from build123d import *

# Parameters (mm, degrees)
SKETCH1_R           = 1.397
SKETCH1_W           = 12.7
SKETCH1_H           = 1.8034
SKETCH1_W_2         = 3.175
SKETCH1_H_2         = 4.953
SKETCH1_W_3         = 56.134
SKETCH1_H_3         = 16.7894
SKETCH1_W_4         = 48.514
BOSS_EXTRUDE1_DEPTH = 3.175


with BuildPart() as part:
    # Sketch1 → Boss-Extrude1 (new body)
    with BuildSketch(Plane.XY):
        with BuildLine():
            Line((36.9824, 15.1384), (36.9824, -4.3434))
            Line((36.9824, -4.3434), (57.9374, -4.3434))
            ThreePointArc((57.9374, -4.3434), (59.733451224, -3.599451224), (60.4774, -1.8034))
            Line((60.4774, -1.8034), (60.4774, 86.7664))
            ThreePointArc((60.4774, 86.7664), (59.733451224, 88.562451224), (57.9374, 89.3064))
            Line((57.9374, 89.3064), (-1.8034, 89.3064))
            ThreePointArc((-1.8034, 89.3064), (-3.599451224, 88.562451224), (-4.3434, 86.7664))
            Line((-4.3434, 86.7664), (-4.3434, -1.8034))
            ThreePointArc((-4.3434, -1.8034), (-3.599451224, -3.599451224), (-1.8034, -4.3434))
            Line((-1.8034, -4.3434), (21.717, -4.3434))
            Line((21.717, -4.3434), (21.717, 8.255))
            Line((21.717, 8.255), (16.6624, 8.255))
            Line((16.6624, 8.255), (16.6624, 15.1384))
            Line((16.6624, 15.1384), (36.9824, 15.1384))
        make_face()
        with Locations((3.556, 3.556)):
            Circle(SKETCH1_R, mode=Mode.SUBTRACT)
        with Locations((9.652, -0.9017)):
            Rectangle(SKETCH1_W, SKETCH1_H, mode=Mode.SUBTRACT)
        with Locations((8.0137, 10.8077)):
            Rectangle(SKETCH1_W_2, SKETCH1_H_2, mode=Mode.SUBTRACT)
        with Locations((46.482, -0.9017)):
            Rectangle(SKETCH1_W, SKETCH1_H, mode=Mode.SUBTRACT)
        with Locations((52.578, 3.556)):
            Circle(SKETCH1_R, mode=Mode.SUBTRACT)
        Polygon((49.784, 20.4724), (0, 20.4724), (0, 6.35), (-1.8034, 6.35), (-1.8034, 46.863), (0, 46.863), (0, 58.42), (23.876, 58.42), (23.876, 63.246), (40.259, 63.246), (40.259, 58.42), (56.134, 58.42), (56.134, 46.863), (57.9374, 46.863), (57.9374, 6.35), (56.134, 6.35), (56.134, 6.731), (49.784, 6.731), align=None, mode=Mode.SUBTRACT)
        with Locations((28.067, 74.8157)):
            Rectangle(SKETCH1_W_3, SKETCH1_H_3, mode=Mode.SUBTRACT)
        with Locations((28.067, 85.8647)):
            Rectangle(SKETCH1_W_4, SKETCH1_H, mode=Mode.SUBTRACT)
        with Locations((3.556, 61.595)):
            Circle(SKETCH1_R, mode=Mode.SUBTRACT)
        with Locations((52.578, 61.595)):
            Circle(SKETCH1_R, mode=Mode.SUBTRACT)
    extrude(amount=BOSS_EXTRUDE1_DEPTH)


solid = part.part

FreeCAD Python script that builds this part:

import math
import FreeCAD as App
import Part
import Sketcher
from FreeCAD import Vector
Q = App.Units.Quantity

doc = App.newDocument("Part")
body = doc.addObject("PartDesign::Body", "Body")

sketch1 = doc.addObject("Sketcher::SketchObject", "Sketch")
body.addObject(sketch1)
sketch1.AttachmentSupport = (doc.XY_Plane, [""])
sketch1.MapMode = "FlatFace"
sketch1.addGeometry([
    Part.LineSegment(Vector(36.98, 15.14, 0), Vector(36.98, -4.34, 0)),
    Part.LineSegment(Vector(36.98, -4.34, 0), Vector(57.94, -4.34, 0)),
    Part.ArcOfCircle(Part.Circle(Vector(57.94, -1.8, 0), Vector(0, 0, 1), 2.54), math.radians(-90), math.radians(0)),
    Part.LineSegment(Vector(60.48, -1.8, 0), Vector(60.48, 86.77, 0)),
    Part.ArcOfCircle(Part.Circle(Vector(57.94, 86.77, 0), Vector(0, 0, 1), 2.54), math.radians(0), math.radians(90)),
    Part.LineSegment(Vector(57.94, 89.31, 0), Vector(-1.8, 89.31, 0)),
    Part.ArcOfCircle(Part.Circle(Vector(-1.8, 86.77, 0), Vector(0, 0, 1), 2.54), math.radians(90), math.radians(180)),
    Part.LineSegment(Vector(-4.34, 86.77, 0), Vector(-4.34, -1.8, 0)),
    Part.ArcOfCircle(Part.Circle(Vector(-1.8, -1.8, 0), Vector(0, 0, 1), 2.54), math.radians(-180), math.radians(-90)),
    Part.LineSegment(Vector(-1.8, -4.34, 0), Vector(21.72, -4.34, 0)),
    Part.LineSegment(Vector(21.72, -4.34, 0), Vector(21.72, 8.26, 0)),
    Part.LineSegment(Vector(21.72, 8.26, 0), Vector(16.66, 8.26, 0)),
    Part.LineSegment(Vector(16.66, 8.26, 0), Vector(16.66, 15.14, 0)),
    Part.LineSegment(Vector(16.66, 15.14, 0), Vector(36.98, 15.14, 0)),
    Part.Circle(Vector(3.56, 3.56, 0), Vector(0, 0, 1), 1.4),
    Part.LineSegment(Vector(16, -1.8, 0), Vector(3.3, -1.8, 0)),
    Part.LineSegment(Vector(3.3, -1.8, 0), Vector(3.3, 0, 0)),
    Part.LineSegment(Vector(3.3, 0, 0), Vector(16, 0, 0)),
    Part.LineSegment(Vector(16, 0, 0), Vector(16, -1.8, 0)),
    Part.LineSegment(Vector(9.6, 8.33, 0), Vector(6.43, 8.33, 0)),
    Part.LineSegment(Vector(6.43, 8.33, 0), Vector(6.43, 13.28, 0)),
    Part.LineSegment(Vector(6.43, 13.28, 0), Vector(9.6, 13.28, 0)),
    Part.LineSegment(Vector(9.6, 13.28, 0), Vector(9.6, 8.33, 0)),
    Part.LineSegment(Vector(52.83, -1.8, 0), Vector(40.13, -1.8, 0)),
    Part.LineSegment(Vector(40.13, -1.8, 0), Vector(40.13, 0, 0)),
    Part.LineSegment(Vector(40.13, 0, 0), Vector(52.83, 0, 0)),
    Part.LineSegment(Vector(52.83, 0, 0), Vector(52.83, -1.8, 0)),
    Part.Circle(Vector(52.58, 3.56, 0), Vector(0, 0, 1), 1.4),
    Part.LineSegment(Vector(49.78, 6.73, 0), Vector(49.78, 20.47, 0)),
    Part.LineSegment(Vector(49.78, 20.47, 0), Vector(0, 20.47, 0)),
    Part.LineSegment(Vector(0, 20.47, 0), Vector(0, 6.35, 0)),
    Part.LineSegment(Vector(0, 6.35, 0), Vector(-1.8, 6.35, 0)),
    Part.LineSegment(Vector(-1.8, 6.35, 0), Vector(-1.8, 46.86, 0)),
    Part.LineSegment(Vector(-1.8, 46.86, 0), Vector(0, 46.86, 0)),
    Part.LineSegment(Vector(0, 46.86, 0), Vector(0, 58.42, 0)),
    Part.LineSegment(Vector(0, 58.42, 0), Vector(23.88, 58.42, 0)),
    Part.LineSegment(Vector(23.88, 58.42, 0), Vector(23.88, 63.25, 0)),
    Part.LineSegment(Vector(23.88, 63.25, 0), Vector(40.26, 63.25, 0)),
    Part.LineSegment(Vector(40.26, 63.25, 0), Vector(40.26, 58.42, 0)),
    Part.LineSegment(Vector(40.26, 58.42, 0), Vector(56.13, 58.42, 0)),
    Part.LineSegment(Vector(56.13, 58.42, 0), Vector(56.13, 46.86, 0)),
    Part.LineSegment(Vector(56.13, 46.86, 0), Vector(57.94, 46.86, 0)),
    Part.LineSegment(Vector(57.94, 46.86, 0), Vector(57.94, 6.35, 0)),
    Part.LineSegment(Vector(57.94, 6.35, 0), Vector(56.13, 6.35, 0)),
    Part.LineSegment(Vector(56.13, 6.35, 0), Vector(56.13, 6.73, 0)),
    Part.LineSegment(Vector(56.13, 6.73, 0), Vector(49.78, 6.73, 0)),
    Part.Circle(Vector(3.56, 61.59, 0), Vector(0, 0, 1), 1.4),
    Part.Circle(Vector(52.58, 61.59, 0), Vector(0, 0, 1), 1.4),
    Part.LineSegment(Vector(56.13, 66.42, 0), Vector(0, 66.42, 0)),
    Part.LineSegment(Vector(0, 66.42, 0), Vector(0, 83.21, 0)),
    Part.LineSegment(Vector(0, 83.21, 0), Vector(56.13, 83.21, 0)),
    Part.LineSegment(Vector(56.13, 83.21, 0), Vector(56.13, 66.42, 0)),
    Part.LineSegment(Vector(52.32, 84.96, 0), Vector(3.81, 84.96, 0)),
    Part.LineSegment(Vector(3.81, 84.96, 0), Vector(3.81, 86.77, 0)),
    Part.LineSegment(Vector(3.81, 86.77, 0), Vector(52.32, 86.77, 0)),
    Part.LineSegment(Vector(52.32, 86.77, 0), Vector(52.32, 84.96, 0)),
], False)
sketch1.addConstraint([
    Sketcher.Constraint("Coincident", 0, 2, 1, 1),
    Sketcher.Constraint("Tangent", 1, 2, 2, 1),
    Sketcher.Constraint("Tangent", 2, 2, 3, 1),
    Sketcher.Constraint("Tangent", 3, 2, 4, 1),
    Sketcher.Constraint("Tangent", 4, 2, 5, 1),
    Sketcher.Constraint("Tangent", 5, 2, 6, 1),
    Sketcher.Constraint("Tangent", 6, 2, 7, 1),
    Sketcher.Constraint("Tangent", 7, 2, 8, 1),
    Sketcher.Constraint("Tangent", 8, 2, 9, 1),
    Sketcher.Constraint("Coincident", 9, 2, 10, 1),
    Sketcher.Constraint("Coincident", 10, 2, 11, 1),
    Sketcher.Constraint("Coincident", 11, 2, 12, 1),
    Sketcher.Constraint("Coincident", 12, 2, 13, 1),
    Sketcher.Constraint("Coincident", 13, 2, 0, 1),
    Sketcher.Constraint("Coincident", 15, 2, 16, 1),
    Sketcher.Constraint("Coincident", 16, 2, 17, 1),
    Sketcher.Constraint("Coincident", 17, 2, 18, 1),
    Sketcher.Constraint("Coincident", 18, 2, 15, 1),
    Sketcher.Constraint("Coincident", 19, 2, 20, 1),
    Sketcher.Constraint("Coincident", 20, 2, 21, 1),
    Sketcher.Constraint("Coincident", 21, 2, 22, 1),
    Sketcher.Constraint("Coincident", 22, 2, 19, 1),
    Sketcher.Constraint("Coincident", 23, 2, 24, 1),
    Sketcher.Constraint("Coincident", 24, 2, 25, 1),
    Sketcher.Constraint("Coincident", 25, 2, 26, 1),
    Sketcher.Constraint("Coincident", 26, 2, 23, 1),
    Sketcher.Constraint("Coincident", 28, 2, 29, 1),
    Sketcher.Constraint("Coincident", 29, 2, 30, 1),
    Sketcher.Constraint("Coincident", 30, 2, 31, 1),
    Sketcher.Constraint("Coincident", 31, 2, 32, 1),
    Sketcher.Constraint("Coincident", 32, 2, 33, 1),
    Sketcher.Constraint("Coincident", 33, 2, 34, 1),
    Sketcher.Constraint("Coincident", 34, 2, 35, 1),
    Sketcher.Constraint("Coincident", 35, 2, 36, 1),
    Sketcher.Constraint("Coincident", 36, 2, 37, 1),
    Sketcher.Constraint("Coincident", 37, 2, 38, 1),
    Sketcher.Constraint("Coincident", 38, 2, 39, 1),
    Sketcher.Constraint("Coincident", 39, 2, 40, 1),
    Sketcher.Constraint("Coincident", 40, 2, 41, 1),
    Sketcher.Constraint("Coincident", 41, 2, 42, 1),
    Sketcher.Constraint("Coincident", 42, 2, 43, 1),
    Sketcher.Constraint("Coincident", 43, 2, 44, 1),
    Sketcher.Constraint("Coincident", 44, 2, 45, 1),
    Sketcher.Constraint("Coincident", 45, 2, 28, 1),
    Sketcher.Constraint("Coincident", 48, 2, 49, 1),
    Sketcher.Constraint("Coincident", 49, 2, 50, 1),
    Sketcher.Constraint("Coincident", 50, 2, 51, 1),
    Sketcher.Constraint("Coincident", 51, 2, 48, 1),
    Sketcher.Constraint("Coincident", 52, 2, 53, 1),
    Sketcher.Constraint("Coincident", 53, 2, 54, 1),
    Sketcher.Constraint("Coincident", 54, 2, 55, 1),
    Sketcher.Constraint("Coincident", 55, 2, 52, 1),
    Sketcher.Constraint("Vertical", 0),
    Sketcher.Constraint("Horizontal", 1),
    Sketcher.Constraint("Vertical", 3),
    Sketcher.Constraint("Horizontal", 5),
    Sketcher.Constraint("Vertical", 7),
    Sketcher.Constraint("Horizontal", 9),
    Sketcher.Constraint("Vertical", 10),
    Sketcher.Constraint("Horizontal", 11),
    Sketcher.Constraint("Vertical", 12),
    Sketcher.Constraint("Horizontal", 13),
    Sketcher.Constraint("Horizontal", 15),
    Sketcher.Constraint("Vertical", 16),
    Sketcher.Constraint("Horizontal", 17),
    Sketcher.Constraint("Vertical", 18),
    Sketcher.Constraint("Horizontal", 19),
    Sketcher.Constraint("Vertical", 20),
    Sketcher.Constraint("Horizontal", 21),
    Sketcher.Constraint("Vertical", 22),
    Sketcher.Constraint("Horizontal", 23),
    Sketcher.Constraint("Vertical", 24),
    Sketcher.Constraint("Horizontal", 25),
    Sketcher.Constraint("Vertical", 26),
    Sketcher.Constraint("Vertical", 28),
    Sketcher.Constraint("Horizontal", 29),
    Sketcher.Constraint("Vertical", 30),
    Sketcher.Constraint("Horizontal", 31),
    Sketcher.Constraint("Vertical", 32),
    Sketcher.Constraint("Horizontal", 33),
    Sketcher.Constraint("Vertical", 34),
    Sketcher.Constraint("Horizontal", 35),
    Sketcher.Constraint("Vertical", 36),
    Sketcher.Constraint("Horizontal", 37),
    Sketcher.Constraint("Vertical", 38),
    Sketcher.Constraint("Horizontal", 39),
    Sketcher.Constraint("Vertical", 40),
    Sketcher.Constraint("Horizontal", 41),
    Sketcher.Constraint("Vertical", 42),
    Sketcher.Constraint("Horizontal", 43),
    Sketcher.Constraint("Vertical", 44),
    Sketcher.Constraint("Horizontal", 45),
    Sketcher.Constraint("Horizontal", 48),
    Sketcher.Constraint("Vertical", 49),
    Sketcher.Constraint("Horizontal", 50),
    Sketcher.Constraint("Vertical", 51),
    Sketcher.Constraint("Horizontal", 52),
    Sketcher.Constraint("Vertical", 53),
    Sketcher.Constraint("Horizontal", 54),
    Sketcher.Constraint("Vertical", 55),
    Sketcher.Constraint("Equal", 2, 4),
    Sketcher.Constraint("Equal", 4, 6),
    Sketcher.Constraint("Equal", 6, 8),
    Sketcher.Constraint("Equal", 14, 27),
    Sketcher.Constraint("Equal", 27, 46),
    Sketcher.Constraint("Equal", 46, 47),
    Sketcher.Constraint("PointOnObject", 16, 2, -1),
    Sketcher.Constraint("PointOnObject", 24, 2, -1),
    Sketcher.Constraint("PointOnObject", 29, 2, -2),
    Sketcher.Constraint("PointOnObject", 33, 2, -2),
    Sketcher.Constraint("PointOnObject", 48, 2, -2),
    Sketcher.Constraint("Horizontal", 2, 3, 8, 3),
    Sketcher.Constraint("Horizontal", 14, 3, 27, 3),
    Sketcher.Constraint("Horizontal", 46, 3, 47, 3),
    Sketcher.Constraint("Horizontal", 7, 2, 15, 2),
    Sketcher.Constraint("Horizontal", 18, 2, 23, 2),
    Sketcher.Constraint("Horizontal", 35, 2, 38, 2),
    Sketcher.Constraint("Horizontal", 33, 2, 40, 2),
    Sketcher.Constraint("Horizontal", 31, 2, 42, 2),
    Sketcher.Constraint("Horizontal", 6, 2, 53, 2),
    Sketcher.Constraint("Vertical", 14, 3, 46, 3),
    Sketcher.Constraint("Vertical", 27, 3, 47, 3),
    Sketcher.Constraint("Vertical", 8, 2, 31, 2),
    Sketcher.Constraint("Vertical", 4, 2, 41, 2),
    Sketcher.Constraint("Vertical", 40, 2, 43, 2),
    Sketcher.Constraint("Vertical", 44, 2, 50, 2),
    Sketcher.Constraint("Equal", 17, 23),
    Sketcher.Constraint("Equal", 33, 41),
    Sketcher.Constraint("Equal", 43, 16),
    Sketcher.Constraint("Equal", 26, 53),
    Sketcher.Constraint("Radius", 2, Q("0.1 in")),
    Sketcher.Constraint("Diameter", 14, Q("0.11 in")),
    Sketcher.Constraint("DistanceX", 13, 1, 13, 2, Q("0.8 in")),
    Sketcher.Constraint("DistanceX", 15, 2, 15, 1, Q("0.5 in")),
    Sketcher.Constraint("DistanceX", 29, 2, 29, 1, Q("1.96 in")),
    Sketcher.Constraint("DistanceX", 35, 1, 35, 2, Q("0.94 in")),
    Sketcher.Constraint("DistanceX", 45, 2, 45, 1, Q("0.25 in")),
    Sketcher.Constraint("DistanceX", 52, 2, 52, 1, Q("1.91 in")),
    Sketcher.Constraint("DistanceY", 36, 1, 36, 2, Q("0.19 in")),
    Sketcher.Constraint("DistanceY", -1, 1, 34, 2, Q("2.3 in")),
    Sketcher.Constraint("DistanceX", 46, 3, 35, 2, Q("0.8 in")),
    Sketcher.Constraint("DistanceX", 1, 1, 1, 2, Q("0.825 in")),
    Sketcher.Constraint("DistanceX", 5, 2, 5, 1, Q("2.352 in")),
    Sketcher.Constraint("DistanceX", 9, 1, 9, 2, Q("0.926 in")),
    Sketcher.Constraint("DistanceX", 19, 2, 19, 1, Q("0.125 in")),
    Sketcher.Constraint("DistanceX", 37, 1, 37, 2, Q("0.645 in")),
    Sketcher.Constraint("DistanceY", 0, 2, 0, 1, Q("0.767 in")),
    Sketcher.Constraint("DistanceY", 3, 1, 3, 2, Q("3.487 in")),
    Sketcher.Constraint("DistanceY", 10, 1, 10, 2, Q("0.496 in")),
    Sketcher.Constraint("DistanceY", 20, 1, 20, 2, Q("0.195 in")),
    Sketcher.Constraint("DistanceY", 28, 1, 28, 2, Q("0.541 in")),
    Sketcher.Constraint("DistanceY", 30, 2, 30, 1, Q("0.556 in")),
    Sketcher.Constraint("DistanceY", 32, 1, 32, 2, Q("1.595 in")),
    Sketcher.Constraint("DistanceY", 34, 1, 34, 2, Q("0.455 in")),
    Sketcher.Constraint("DistanceY", 49, 1, 49, 2, Q("0.661 in")),
    Sketcher.Constraint("DistanceY", -1, 1, 14, 3, Q("0.14 in")),
    Sketcher.Constraint("DistanceX", -1, 1, 27, 3, Q("2.07 in")),
    Sketcher.Constraint("DistanceX", -1, 1, 15, 2, Q("0.13 in")),
    Sketcher.Constraint("DistanceX", -1, 1, 23, 2, Q("1.58 in")),
    Sketcher.Constraint("DistanceX", -1, 1, 52, 2, Q("0.15 in")),
    Sketcher.Constraint("DistanceY", 32, 2, 46, 3, Q("0.58 in")),
    Sketcher.Constraint("DistanceY", 46, 3, 48, 2, Q("0.19 in")),
    Sketcher.Constraint("DistanceX", -1, 1, 19, 2, Q("0.253 in")),
    Sketcher.Constraint("DistanceY", -1, 1, 19, 2, Q("0.328 in")),
])
pad1 = doc.addObject("PartDesign::Pad", "Pad")
body.addObject(pad1)
pad1.Profile = sketch1
pad1.Length = Q("0.125 in")

doc.recompute()
